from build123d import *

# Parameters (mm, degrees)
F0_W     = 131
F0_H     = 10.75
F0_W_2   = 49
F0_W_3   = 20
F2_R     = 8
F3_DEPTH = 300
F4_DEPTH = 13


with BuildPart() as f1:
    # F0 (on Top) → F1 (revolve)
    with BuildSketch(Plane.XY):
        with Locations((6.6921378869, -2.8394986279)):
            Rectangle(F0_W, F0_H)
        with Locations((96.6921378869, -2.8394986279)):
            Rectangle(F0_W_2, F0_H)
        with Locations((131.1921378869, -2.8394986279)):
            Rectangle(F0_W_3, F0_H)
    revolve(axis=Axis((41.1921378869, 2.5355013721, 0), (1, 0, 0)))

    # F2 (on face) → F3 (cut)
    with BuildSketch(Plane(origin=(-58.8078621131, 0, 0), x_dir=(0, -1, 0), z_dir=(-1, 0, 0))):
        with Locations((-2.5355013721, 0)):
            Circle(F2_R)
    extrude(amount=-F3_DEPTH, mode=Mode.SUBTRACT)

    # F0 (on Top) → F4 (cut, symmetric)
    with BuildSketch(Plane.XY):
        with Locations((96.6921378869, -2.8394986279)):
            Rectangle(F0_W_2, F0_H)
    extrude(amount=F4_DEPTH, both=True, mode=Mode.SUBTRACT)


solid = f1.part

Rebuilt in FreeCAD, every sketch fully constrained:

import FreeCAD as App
import Part
import Sketcher
Q = App.Units.Quantity

doc = App.newDocument("Part")
body = doc.addObject("PartDesign::Body", "Body")

sketch1 = doc.addObject("Sketcher::SketchObject", "Sketch")
body.addObject(sketch1)
sketch1.AttachmentSupport = (doc.XY_Plane, [""])
sketch1.MapMode = "FlatFace"
sketch1.addGeometry([
    Part.LineSegment(App.Vector(-58.807862, 2.535501, 0), App.Vector(-58.807862, -8.214499, 0)),
    Part.LineSegment(App.Vector(-58.807862, -8.214499, 0), App.Vector(141.192138, -8.214499, 0)),
    Part.LineSegment(App.Vector(141.192138, -8.214499, 0), App.Vector(141.192138, 2.535501, 0)),
    Part.LineSegment(App.Vector(141.192138, 2.535501, 0), App.Vector(-58.807862, 2.535501, 0)),
], False)
sketch1.addGeometry(Part.LineSegment(App.Vector(-58.807862, 2.535501, 0), App.Vector(141.192138, 2.535501, 0)), True)
sketch1.addConstraint([
    Sketcher.Constraint("Coincident", 0, 2, 1, 1),
    Sketcher.Constraint("Coincident", 1, 2, 2, 1),
    Sketcher.Constraint("Coincident", 2, 2, 3, 1),
    Sketcher.Constraint("Coincident", 3, 2, 0, 1),
    Sketcher.Constraint("Vertical", 0),
    Sketcher.Constraint("Horizontal", 1),
    Sketcher.Constraint("Vertical", 2),
    Sketcher.Constraint("Horizontal", 3),
    Sketcher.Constraint("Horizontal", 4),
    Sketcher.Constraint("Coincident", 4, 1, 3, 2),
    Sketcher.Constraint("Vertical", 1, 2, 4, 2),
    Sketcher.Constraint("DistanceX", 1, 1, 1, 2, Q("200 mm")),
    Sketcher.Constraint("DistanceY", 0, 2, 0, 1, Q("10.75 mm")),
    Sketcher.Constraint("DistanceY", 0, 2, -1, 1, Q("8.214499 mm")),
    Sketcher.Constraint("DistanceX", 0, 2, -1, 1, Q("58.807862 mm")),
])
revolution = doc.addObject("PartDesign::Revolution", "Revolution")
body.addObject(revolution)
revolution.Profile = sketch1
revolution.ReferenceAxis = (sketch1, ["Axis0"])
revolution.Angle = 360

sketch2 = doc.addObject("Sketcher::SketchObject", "Sketch001")
body.addObject(sketch2)
sketch2.AttachmentSupport = (doc.YZ_Plane, [""])
sketch2.MapMode = "FlatFace"
sketch2.AttachmentOffset = App.Placement(App.Vector(0, 0, -58.807862), App.Rotation())
sketch2.addGeometry(Part.Circle(App.Vector(2.535501, 0, 0), App.Vector(0, 0, 1), 8), False)
sketch2.addConstraint([
    Sketcher.Constraint("PointOnObject", 0, 3, -1),
    Sketcher.Constraint("Diameter", 0, Q("16 mm")),
    Sketcher.Constraint("DistanceX", -1, 1, 0, 3, Q("2.535501 mm")),
])
pocket1 = doc.addObject("PartDesign::Pocket", "Pocket")
body.addObject(pocket1)
pocket1.Profile = sketch2
pocket1.Length = 300
pocket1.Reversed = True

sketch3 = doc.addObject("Sketcher::SketchObject", "Sketch002")
body.addObject(sketch3)
sketch3.AttachmentSupport = (doc.XY_Plane, [""])
sketch3.MapMode = "FlatFace"
sketch3.addGeometry([
    Part.LineSegment(App.Vector(72.192138, 2.535501, 0), App.Vector(72.192138, -8.214499, 0)),
    Part.LineSegment(App.Vector(72.192138, -8.214499, 0), App.Vector(121.192138, -8.214499, 0)),
    Part.LineSegment(App.Vector(121.192138, -8.214499, 0), App.Vector(121.192138, 2.535501, 0)),
    Part.LineSegment(App.Vector(121.192138, 2.535501, 0), App.Vector(72.192138, 2.535501, 0)),
], False)
sketch3.addConstraint([
    Sketcher.Constraint("Coincident", 0, 2, 1, 1),
    Sketcher.Constraint("Coincident", 1, 2, 2, 1),
    Sketcher.Constraint("Coincident", 2, 2, 3, 1),
    Sketcher.Constraint("Coincident", 3, 2, 0, 1),
    Sketcher.Constraint("Vertical", 0),
    Sketcher.Constraint("Horizontal", 1),
    Sketcher.Constraint("Vertical", 2),
    Sketcher.Constraint("Horizontal", 3),
    Sketcher.Constraint("DistanceX", 1, 1, 1, 2, Q("49 mm")),
    Sketcher.Constraint("DistanceY", 0, 2, 0, 1, Q("10.75 mm")),
    Sketcher.Constraint("DistanceY", 0, 2, -1, 1, Q("8.214499 mm")),
    Sketcher.Constraint("DistanceX", -1, 1, 0, 2, Q("72.192138 mm")),
])
pocket2 = doc.addObject("PartDesign::Pocket", "Pocket001")
body.addObject(pocket2)
pocket2.Profile = sketch3
pocket2.Length = 26
pocket2.Midplane = True

doc.recompute()
